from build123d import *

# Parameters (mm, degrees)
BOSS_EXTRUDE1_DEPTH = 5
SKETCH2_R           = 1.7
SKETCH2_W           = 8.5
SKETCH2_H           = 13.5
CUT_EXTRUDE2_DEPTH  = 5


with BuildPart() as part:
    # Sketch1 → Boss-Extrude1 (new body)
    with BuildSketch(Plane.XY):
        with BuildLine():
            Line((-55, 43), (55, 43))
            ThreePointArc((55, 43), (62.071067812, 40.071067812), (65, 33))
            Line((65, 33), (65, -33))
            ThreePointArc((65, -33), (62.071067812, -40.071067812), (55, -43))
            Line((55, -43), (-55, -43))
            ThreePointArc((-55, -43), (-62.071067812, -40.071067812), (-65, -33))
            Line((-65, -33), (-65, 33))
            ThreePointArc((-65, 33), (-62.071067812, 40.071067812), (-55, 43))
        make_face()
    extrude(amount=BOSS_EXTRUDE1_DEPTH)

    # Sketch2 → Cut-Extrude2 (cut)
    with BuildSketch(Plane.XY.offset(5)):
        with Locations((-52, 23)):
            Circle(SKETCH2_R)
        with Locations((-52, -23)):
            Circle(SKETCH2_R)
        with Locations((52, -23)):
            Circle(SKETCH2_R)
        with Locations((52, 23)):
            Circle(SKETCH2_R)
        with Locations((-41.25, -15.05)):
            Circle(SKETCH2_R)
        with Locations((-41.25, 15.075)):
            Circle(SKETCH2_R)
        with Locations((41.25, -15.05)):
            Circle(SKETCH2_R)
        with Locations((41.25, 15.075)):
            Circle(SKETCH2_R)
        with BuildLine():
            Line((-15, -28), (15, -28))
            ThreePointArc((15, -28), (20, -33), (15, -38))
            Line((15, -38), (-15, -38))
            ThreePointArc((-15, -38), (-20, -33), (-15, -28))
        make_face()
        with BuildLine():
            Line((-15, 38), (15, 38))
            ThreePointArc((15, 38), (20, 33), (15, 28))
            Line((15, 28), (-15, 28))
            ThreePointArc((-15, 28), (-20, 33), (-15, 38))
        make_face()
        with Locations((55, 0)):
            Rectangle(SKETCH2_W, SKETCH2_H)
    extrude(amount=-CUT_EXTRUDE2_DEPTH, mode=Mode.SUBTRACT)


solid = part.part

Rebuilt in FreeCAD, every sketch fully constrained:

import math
import FreeCAD as App
import Part
import Sketcher
from FreeCAD import Vector


def add_polygon(sketch, points):
    """Adds a closed chain of lines whose ends are joined by coincident constraints."""
    first, n = sketch.GeometryCount, len(points)
    for a, b in zip(points, points[1:] + points[:1]):
        sketch.addGeometry(Part.LineSegment(App.Vector(*a, 0), App.Vector(*b, 0)), False)
    for i in range(n):
        sketch.addConstraint(Sketcher.Constraint("Coincident", first + i, 2, first + (i + 1) % n, 1))

doc = App.newDocument("Part")
body = doc.addObject("PartDesign::Body", "Body")

# Sketch on XY plane
sketch1 = body.newObject("Sketcher::SketchObject", "Sketch")
sketch1.AttachmentSupport = (doc.getObject("XY_Plane"), [""])
sketch1.MapMode = "FlatFace"
sketch1.addGeometry(Part.LineSegment(Vector(55, 43, 0), Vector(-55, 43, 0)), False)
sketch1.addGeometry(Part.ArcOfCircle(Part.Circle(Vector(-55, 33, 0), Vector(0, 0, 1), 10), math.radians(90), math.radians(180)), False)
sketch1.addGeometry(Part.LineSegment(Vector(-65, 33, 0), Vector(-65, -33, 0)), False)
sketch1.addGeometry(Part.ArcOfCircle(Part.Circle(Vector(-55, -33, 0), Vector(0, 0, 1), 10), math.radians(180), math.radians(270)), False)
sketch1.addGeometry(Part.LineSegment(Vector(-55, -43, 0), Vector(55, -43, 0)), False)
sketch1.addGeometry(Part.ArcOfCircle(Part.Circle(Vector(55, -33, 0), Vector(0, 0, 1), 10), math.radians(-90), math.radians(0)), False)
sketch1.addGeometry(Part.LineSegment(Vector(65, -33, 0), Vector(65, 33, 0)), False)
sketch1.addGeometry(Part.ArcOfCircle(Part.Circle(Vector(55, 33, 0), Vector(0, 0, 1), 10), math.radians(0), math.radians(90)), False)
sketch1.addConstraint(Sketcher.Constraint("Tangent", 0, 2, 1, 1))
sketch1.addConstraint(Sketcher.Constraint("Tangent", 1, 2, 2, 1))
sketch1.addConstraint(Sketcher.Constraint("Tangent", 2, 2, 3, 1))
sketch1.addConstraint(Sketcher.Constraint("Tangent", 3, 2, 4, 1))
sketch1.addConstraint(Sketcher.Constraint("Tangent", 4, 2, 5, 1))
sketch1.addConstraint(Sketcher.Constraint("Tangent", 5, 2, 6, 1))
sketch1.addConstraint(Sketcher.Constraint("Tangent", 6, 2, 7, 1))
sketch1.addConstraint(Sketcher.Constraint("Tangent", 7, 2, 0, 1))
sketch1.addConstraint(Sketcher.Constraint("Horizontal", 0))
sketch1.addConstraint(Sketcher.Constraint("Vertical", 2))
sketch1.addConstraint(Sketcher.Constraint("Horizontal", 4))
sketch1.addConstraint(Sketcher.Constraint("Vertical", 6))
sketch1.addConstraint(Sketcher.Constraint("Equal", 1, 3))
sketch1.addConstraint(Sketcher.Constraint("Equal", 3, 5))
sketch1.addConstraint(Sketcher.Constraint("Equal", 5, 7))
sketch1.addConstraint(Sketcher.Constraint("Symmetric", 1, 3, 5, 3, -1, 1))
sketch1.addConstraint(Sketcher.Constraint("Radius", 1, 10.0))
sketch1.addConstraint(Sketcher.Constraint("DistanceX", 0, 2, 0, 1, 110.0))
sketch1.addConstraint(Sketcher.Constraint("DistanceY", 2, 2, 2, 1, 66.0))
pad1 = body.newObject("PartDesign::Pad", "Pad")
pad1.Profile = sketch1
pad1.Length = 5

# Sketch on XY plane
sketch2 = body.newObject("Sketcher::SketchObject", "Sketch001")
sketch2.AttachmentSupport = (doc.getObject("XY_Plane"), [""])
sketch2.MapMode = "FlatFace"
sketch2.AttachmentOffset = App.Placement(Vector(0, 0, 5), App.Rotation())
sketch2.addGeometry(Part.Circle(Vector(-52, 23, 0), Vector(0, 0, 1), 1.7), False)  # 0
sketch2.addGeometry(Part.Circle(Vector(-52, -23, 0), Vector(0, 0, 1), 1.7), False)  # 1
sketch2.addGeometry(Part.Circle(Vector(52, -23, 0), Vector(0, 0, 1), 1.7), False)  # 2
sketch2.addGeometry(Part.Circle(Vector(52, 23, 0), Vector(0, 0, 1), 1.7), False)  # 3
sketch2.addGeometry(Part.Circle(Vector(-41.2, -15.1, 0), Vector(0, 0, 1), 1.7), False)  # 4
sketch2.addGeometry(Part.Circle(Vector(-41.2, 15.1, 0), Vector(0, 0, 1), 1.7), False)  # 5
sketch2.addGeometry(Part.Circle(Vector(41.2, -15.1, 0), Vector(0, 0, 1), 1.7), False)  # 6
sketch2.addGeometry(Part.Circle(Vector(41.2, 15.1, 0), Vector(0, 0, 1), 1.7), False)  # 7
sketch2.addGeometry(Part.LineSegment(Vector(15, -28, 0), Vector(-15, -28, 0)), False)  # 8
sketch2.addGeometry(Part.ArcOfCircle(Part.Circle(Vector(-15, -33, 0), Vector(0, 0, 1), 5), math.radians(90), math.radians(270)), False)  # 9
sketch2.addGeometry(Part.LineSegment(Vector(-15, -38, 0), Vector(15, -38, 0)), False)  # 10
sketch2.addGeometry(Part.ArcOfCircle(Part.Circle(Vector(15, -33, 0), Vector(0, 0, 1), 5), math.radians(-90), math.radians(90)), False)  # 11
sketch2.addGeometry(Part.LineSegment(Vector(15, 38, 0), Vector(-15, 38, 0)), False)  # 12
sketch2.addGeometry(Part.ArcOfCircle(Part.Circle(Vector(-15, 33, 0), Vector(0, 0, 1), 5), math.radians(90), math.radians(270)), False)  # 13
sketch2.addGeometry(Part.LineSegment(Vector(-15, 28, 0), Vector(15, 28, 0)), False)  # 14
sketch2.addGeometry(Part.ArcOfCircle(Part.Circle(Vector(15, 33, 0), Vector(0, 0, 1), 5), math.radians(-90), math.radians(90)), False)  # 15
add_polygon(sketch2, [(50.8, 6.8), (50.8, -6.8), (59.2, -6.8), (59.2, 6.8)])  # lines 16-19
sketch2.addConstraint(Sketcher.Constraint("Tangent", 8, 2, 9, 1))
sketch2.addConstraint(Sketcher.Constraint("Tangent", 9, 2, 10, 1))
sketch2.addConstraint(Sketcher.Constraint("Tangent", 10, 2, 11, 1))
sketch2.addConstraint(Sketcher.Constraint("Tangent", 11, 2, 8, 1))
sketch2.addConstraint(Sketcher.Constraint("Tangent", 12, 2, 13, 1))
sketch2.addConstraint(Sketcher.Constraint("Tangent", 13, 2, 14, 1))
sketch2.addConstraint(Sketcher.Constraint("Tangent", 14, 2, 15, 1))
sketch2.addConstraint(Sketcher.Constraint("Tangent", 15, 2, 12, 1))
sketch2.addConstraint(Sketcher.Constraint("Horizontal", 8))
sketch2.addConstraint(Sketcher.Constraint("Horizontal", 10))
sketch2.addConstraint(Sketcher.Constraint("Horizontal", 12))
sketch2.addConstraint(Sketcher.Constraint("Horizontal", 14))
sketch2.addConstraint(Sketcher.Constraint("Vertical", 16))
sketch2.addConstraint(Sketcher.Constraint("Horizontal", 17))
sketch2.addConstraint(Sketcher.Constraint("Vertical", 18))
sketch2.addConstraint(Sketcher.Constraint("Horizontal", 19))
sketch2.addConstraint(Sketcher.Constraint("Equal", 0, 1))
sketch2.addConstraint(Sketcher.Constraint("Equal", 1, 2))
sketch2.addConstraint(Sketcher.Constraint("Equal", 2, 3))
sketch2.addConstraint(Sketcher.Constraint("Equal", 3, 4))
sketch2.addConstraint(Sketcher.Constraint("Equal", 4, 5))
sketch2.addConstraint(Sketcher.Constraint("Equal", 5, 6))
sketch2.addConstraint(Sketcher.Constraint("Equal", 6, 7))
sketch2.addConstraint(Sketcher.Constraint("Equal", 11, 13))
sketch2.addConstraint(Sketcher.Constraint("Symmetric", 0, 3, 2, 3, -1, 1))
sketch2.addConstraint(Sketcher.Constraint("Symmetric", 1, 3, 3, 3, -1, 1))
sketch2.addConstraint(Sketcher.Constraint("Symmetric", 11, 3, 13, 3, -1, 1))
sketch2.addConstraint(Sketcher.Constraint("Symmetric", 1, 3, 2, 3, -2))
sketch2.addConstraint(Sketcher.Constraint("Symmetric", 4, 3, 6, 3, -2))
sketch2.addConstraint(Sketcher.Constraint("Symmetric", 5, 3, 7, 3, -2))
sketch2.addConstraint(Sketcher.Constraint("Vertical", 4, 3, 5, 3))
sketch2.addConstraint(Sketcher.Constraint("Vertical", 9, 3, 13, 3))
sketch2.addConstraint(Sketcher.Constraint("Vertical", 11, 3, 15, 3))
sketch2.addConstraint(Sketcher.Constraint("Radius", 9, 5.0))
sketch2.addConstraint(Sketcher.Constraint("Diameter", 0, 3.4))
sketch2.addConstraint(Sketcher.Constraint("DistanceX", 8, 2, 8, 1, 30.0))
sketch2.addConstraint(Sketcher.Constraint("DistanceX", 17, 1, 17, 2, 8.5))
sketch2.addConstraint(Sketcher.Constraint("DistanceY", 16, 2, 16, 1, 13.5))
sketch2.addConstraint(Sketcher.Constraint("DistanceX", 0, 3, -1, 1, 52.0))
sketch2.addConstraint(Sketcher.Constraint("DistanceY", -1, 1, 0, 3, 23.0))
sketch2.addConstraint(Sketcher.Constraint("DistanceY", 9, 3, -1, 1, 33.0))
sketch2.addConstraint(Sketcher.Constraint("DistanceX", 6, 3, 17, 2, 18.0))
sketch2.addConstraint(Sketcher.Constraint("DistanceX", 4, 3, 6, 3, 82.5))
sketch2.addConstraint(Sketcher.Constraint("DistanceY", 6, 3, 16, 2, 8.3))
sketch2.addConstraint(Sketcher.Constraint("DistanceY", 4, 3, -1, 1, 15.05))
sketch2.addConstraint(Sketcher.Constraint("DistanceY", -1, 1, 5, 3, 15.075))
pocket1 = body.newObject("PartDesign::Pocket", "Pocket")
pocket1.Profile = sketch2
pocket1.Length = 5

doc.recompute()
